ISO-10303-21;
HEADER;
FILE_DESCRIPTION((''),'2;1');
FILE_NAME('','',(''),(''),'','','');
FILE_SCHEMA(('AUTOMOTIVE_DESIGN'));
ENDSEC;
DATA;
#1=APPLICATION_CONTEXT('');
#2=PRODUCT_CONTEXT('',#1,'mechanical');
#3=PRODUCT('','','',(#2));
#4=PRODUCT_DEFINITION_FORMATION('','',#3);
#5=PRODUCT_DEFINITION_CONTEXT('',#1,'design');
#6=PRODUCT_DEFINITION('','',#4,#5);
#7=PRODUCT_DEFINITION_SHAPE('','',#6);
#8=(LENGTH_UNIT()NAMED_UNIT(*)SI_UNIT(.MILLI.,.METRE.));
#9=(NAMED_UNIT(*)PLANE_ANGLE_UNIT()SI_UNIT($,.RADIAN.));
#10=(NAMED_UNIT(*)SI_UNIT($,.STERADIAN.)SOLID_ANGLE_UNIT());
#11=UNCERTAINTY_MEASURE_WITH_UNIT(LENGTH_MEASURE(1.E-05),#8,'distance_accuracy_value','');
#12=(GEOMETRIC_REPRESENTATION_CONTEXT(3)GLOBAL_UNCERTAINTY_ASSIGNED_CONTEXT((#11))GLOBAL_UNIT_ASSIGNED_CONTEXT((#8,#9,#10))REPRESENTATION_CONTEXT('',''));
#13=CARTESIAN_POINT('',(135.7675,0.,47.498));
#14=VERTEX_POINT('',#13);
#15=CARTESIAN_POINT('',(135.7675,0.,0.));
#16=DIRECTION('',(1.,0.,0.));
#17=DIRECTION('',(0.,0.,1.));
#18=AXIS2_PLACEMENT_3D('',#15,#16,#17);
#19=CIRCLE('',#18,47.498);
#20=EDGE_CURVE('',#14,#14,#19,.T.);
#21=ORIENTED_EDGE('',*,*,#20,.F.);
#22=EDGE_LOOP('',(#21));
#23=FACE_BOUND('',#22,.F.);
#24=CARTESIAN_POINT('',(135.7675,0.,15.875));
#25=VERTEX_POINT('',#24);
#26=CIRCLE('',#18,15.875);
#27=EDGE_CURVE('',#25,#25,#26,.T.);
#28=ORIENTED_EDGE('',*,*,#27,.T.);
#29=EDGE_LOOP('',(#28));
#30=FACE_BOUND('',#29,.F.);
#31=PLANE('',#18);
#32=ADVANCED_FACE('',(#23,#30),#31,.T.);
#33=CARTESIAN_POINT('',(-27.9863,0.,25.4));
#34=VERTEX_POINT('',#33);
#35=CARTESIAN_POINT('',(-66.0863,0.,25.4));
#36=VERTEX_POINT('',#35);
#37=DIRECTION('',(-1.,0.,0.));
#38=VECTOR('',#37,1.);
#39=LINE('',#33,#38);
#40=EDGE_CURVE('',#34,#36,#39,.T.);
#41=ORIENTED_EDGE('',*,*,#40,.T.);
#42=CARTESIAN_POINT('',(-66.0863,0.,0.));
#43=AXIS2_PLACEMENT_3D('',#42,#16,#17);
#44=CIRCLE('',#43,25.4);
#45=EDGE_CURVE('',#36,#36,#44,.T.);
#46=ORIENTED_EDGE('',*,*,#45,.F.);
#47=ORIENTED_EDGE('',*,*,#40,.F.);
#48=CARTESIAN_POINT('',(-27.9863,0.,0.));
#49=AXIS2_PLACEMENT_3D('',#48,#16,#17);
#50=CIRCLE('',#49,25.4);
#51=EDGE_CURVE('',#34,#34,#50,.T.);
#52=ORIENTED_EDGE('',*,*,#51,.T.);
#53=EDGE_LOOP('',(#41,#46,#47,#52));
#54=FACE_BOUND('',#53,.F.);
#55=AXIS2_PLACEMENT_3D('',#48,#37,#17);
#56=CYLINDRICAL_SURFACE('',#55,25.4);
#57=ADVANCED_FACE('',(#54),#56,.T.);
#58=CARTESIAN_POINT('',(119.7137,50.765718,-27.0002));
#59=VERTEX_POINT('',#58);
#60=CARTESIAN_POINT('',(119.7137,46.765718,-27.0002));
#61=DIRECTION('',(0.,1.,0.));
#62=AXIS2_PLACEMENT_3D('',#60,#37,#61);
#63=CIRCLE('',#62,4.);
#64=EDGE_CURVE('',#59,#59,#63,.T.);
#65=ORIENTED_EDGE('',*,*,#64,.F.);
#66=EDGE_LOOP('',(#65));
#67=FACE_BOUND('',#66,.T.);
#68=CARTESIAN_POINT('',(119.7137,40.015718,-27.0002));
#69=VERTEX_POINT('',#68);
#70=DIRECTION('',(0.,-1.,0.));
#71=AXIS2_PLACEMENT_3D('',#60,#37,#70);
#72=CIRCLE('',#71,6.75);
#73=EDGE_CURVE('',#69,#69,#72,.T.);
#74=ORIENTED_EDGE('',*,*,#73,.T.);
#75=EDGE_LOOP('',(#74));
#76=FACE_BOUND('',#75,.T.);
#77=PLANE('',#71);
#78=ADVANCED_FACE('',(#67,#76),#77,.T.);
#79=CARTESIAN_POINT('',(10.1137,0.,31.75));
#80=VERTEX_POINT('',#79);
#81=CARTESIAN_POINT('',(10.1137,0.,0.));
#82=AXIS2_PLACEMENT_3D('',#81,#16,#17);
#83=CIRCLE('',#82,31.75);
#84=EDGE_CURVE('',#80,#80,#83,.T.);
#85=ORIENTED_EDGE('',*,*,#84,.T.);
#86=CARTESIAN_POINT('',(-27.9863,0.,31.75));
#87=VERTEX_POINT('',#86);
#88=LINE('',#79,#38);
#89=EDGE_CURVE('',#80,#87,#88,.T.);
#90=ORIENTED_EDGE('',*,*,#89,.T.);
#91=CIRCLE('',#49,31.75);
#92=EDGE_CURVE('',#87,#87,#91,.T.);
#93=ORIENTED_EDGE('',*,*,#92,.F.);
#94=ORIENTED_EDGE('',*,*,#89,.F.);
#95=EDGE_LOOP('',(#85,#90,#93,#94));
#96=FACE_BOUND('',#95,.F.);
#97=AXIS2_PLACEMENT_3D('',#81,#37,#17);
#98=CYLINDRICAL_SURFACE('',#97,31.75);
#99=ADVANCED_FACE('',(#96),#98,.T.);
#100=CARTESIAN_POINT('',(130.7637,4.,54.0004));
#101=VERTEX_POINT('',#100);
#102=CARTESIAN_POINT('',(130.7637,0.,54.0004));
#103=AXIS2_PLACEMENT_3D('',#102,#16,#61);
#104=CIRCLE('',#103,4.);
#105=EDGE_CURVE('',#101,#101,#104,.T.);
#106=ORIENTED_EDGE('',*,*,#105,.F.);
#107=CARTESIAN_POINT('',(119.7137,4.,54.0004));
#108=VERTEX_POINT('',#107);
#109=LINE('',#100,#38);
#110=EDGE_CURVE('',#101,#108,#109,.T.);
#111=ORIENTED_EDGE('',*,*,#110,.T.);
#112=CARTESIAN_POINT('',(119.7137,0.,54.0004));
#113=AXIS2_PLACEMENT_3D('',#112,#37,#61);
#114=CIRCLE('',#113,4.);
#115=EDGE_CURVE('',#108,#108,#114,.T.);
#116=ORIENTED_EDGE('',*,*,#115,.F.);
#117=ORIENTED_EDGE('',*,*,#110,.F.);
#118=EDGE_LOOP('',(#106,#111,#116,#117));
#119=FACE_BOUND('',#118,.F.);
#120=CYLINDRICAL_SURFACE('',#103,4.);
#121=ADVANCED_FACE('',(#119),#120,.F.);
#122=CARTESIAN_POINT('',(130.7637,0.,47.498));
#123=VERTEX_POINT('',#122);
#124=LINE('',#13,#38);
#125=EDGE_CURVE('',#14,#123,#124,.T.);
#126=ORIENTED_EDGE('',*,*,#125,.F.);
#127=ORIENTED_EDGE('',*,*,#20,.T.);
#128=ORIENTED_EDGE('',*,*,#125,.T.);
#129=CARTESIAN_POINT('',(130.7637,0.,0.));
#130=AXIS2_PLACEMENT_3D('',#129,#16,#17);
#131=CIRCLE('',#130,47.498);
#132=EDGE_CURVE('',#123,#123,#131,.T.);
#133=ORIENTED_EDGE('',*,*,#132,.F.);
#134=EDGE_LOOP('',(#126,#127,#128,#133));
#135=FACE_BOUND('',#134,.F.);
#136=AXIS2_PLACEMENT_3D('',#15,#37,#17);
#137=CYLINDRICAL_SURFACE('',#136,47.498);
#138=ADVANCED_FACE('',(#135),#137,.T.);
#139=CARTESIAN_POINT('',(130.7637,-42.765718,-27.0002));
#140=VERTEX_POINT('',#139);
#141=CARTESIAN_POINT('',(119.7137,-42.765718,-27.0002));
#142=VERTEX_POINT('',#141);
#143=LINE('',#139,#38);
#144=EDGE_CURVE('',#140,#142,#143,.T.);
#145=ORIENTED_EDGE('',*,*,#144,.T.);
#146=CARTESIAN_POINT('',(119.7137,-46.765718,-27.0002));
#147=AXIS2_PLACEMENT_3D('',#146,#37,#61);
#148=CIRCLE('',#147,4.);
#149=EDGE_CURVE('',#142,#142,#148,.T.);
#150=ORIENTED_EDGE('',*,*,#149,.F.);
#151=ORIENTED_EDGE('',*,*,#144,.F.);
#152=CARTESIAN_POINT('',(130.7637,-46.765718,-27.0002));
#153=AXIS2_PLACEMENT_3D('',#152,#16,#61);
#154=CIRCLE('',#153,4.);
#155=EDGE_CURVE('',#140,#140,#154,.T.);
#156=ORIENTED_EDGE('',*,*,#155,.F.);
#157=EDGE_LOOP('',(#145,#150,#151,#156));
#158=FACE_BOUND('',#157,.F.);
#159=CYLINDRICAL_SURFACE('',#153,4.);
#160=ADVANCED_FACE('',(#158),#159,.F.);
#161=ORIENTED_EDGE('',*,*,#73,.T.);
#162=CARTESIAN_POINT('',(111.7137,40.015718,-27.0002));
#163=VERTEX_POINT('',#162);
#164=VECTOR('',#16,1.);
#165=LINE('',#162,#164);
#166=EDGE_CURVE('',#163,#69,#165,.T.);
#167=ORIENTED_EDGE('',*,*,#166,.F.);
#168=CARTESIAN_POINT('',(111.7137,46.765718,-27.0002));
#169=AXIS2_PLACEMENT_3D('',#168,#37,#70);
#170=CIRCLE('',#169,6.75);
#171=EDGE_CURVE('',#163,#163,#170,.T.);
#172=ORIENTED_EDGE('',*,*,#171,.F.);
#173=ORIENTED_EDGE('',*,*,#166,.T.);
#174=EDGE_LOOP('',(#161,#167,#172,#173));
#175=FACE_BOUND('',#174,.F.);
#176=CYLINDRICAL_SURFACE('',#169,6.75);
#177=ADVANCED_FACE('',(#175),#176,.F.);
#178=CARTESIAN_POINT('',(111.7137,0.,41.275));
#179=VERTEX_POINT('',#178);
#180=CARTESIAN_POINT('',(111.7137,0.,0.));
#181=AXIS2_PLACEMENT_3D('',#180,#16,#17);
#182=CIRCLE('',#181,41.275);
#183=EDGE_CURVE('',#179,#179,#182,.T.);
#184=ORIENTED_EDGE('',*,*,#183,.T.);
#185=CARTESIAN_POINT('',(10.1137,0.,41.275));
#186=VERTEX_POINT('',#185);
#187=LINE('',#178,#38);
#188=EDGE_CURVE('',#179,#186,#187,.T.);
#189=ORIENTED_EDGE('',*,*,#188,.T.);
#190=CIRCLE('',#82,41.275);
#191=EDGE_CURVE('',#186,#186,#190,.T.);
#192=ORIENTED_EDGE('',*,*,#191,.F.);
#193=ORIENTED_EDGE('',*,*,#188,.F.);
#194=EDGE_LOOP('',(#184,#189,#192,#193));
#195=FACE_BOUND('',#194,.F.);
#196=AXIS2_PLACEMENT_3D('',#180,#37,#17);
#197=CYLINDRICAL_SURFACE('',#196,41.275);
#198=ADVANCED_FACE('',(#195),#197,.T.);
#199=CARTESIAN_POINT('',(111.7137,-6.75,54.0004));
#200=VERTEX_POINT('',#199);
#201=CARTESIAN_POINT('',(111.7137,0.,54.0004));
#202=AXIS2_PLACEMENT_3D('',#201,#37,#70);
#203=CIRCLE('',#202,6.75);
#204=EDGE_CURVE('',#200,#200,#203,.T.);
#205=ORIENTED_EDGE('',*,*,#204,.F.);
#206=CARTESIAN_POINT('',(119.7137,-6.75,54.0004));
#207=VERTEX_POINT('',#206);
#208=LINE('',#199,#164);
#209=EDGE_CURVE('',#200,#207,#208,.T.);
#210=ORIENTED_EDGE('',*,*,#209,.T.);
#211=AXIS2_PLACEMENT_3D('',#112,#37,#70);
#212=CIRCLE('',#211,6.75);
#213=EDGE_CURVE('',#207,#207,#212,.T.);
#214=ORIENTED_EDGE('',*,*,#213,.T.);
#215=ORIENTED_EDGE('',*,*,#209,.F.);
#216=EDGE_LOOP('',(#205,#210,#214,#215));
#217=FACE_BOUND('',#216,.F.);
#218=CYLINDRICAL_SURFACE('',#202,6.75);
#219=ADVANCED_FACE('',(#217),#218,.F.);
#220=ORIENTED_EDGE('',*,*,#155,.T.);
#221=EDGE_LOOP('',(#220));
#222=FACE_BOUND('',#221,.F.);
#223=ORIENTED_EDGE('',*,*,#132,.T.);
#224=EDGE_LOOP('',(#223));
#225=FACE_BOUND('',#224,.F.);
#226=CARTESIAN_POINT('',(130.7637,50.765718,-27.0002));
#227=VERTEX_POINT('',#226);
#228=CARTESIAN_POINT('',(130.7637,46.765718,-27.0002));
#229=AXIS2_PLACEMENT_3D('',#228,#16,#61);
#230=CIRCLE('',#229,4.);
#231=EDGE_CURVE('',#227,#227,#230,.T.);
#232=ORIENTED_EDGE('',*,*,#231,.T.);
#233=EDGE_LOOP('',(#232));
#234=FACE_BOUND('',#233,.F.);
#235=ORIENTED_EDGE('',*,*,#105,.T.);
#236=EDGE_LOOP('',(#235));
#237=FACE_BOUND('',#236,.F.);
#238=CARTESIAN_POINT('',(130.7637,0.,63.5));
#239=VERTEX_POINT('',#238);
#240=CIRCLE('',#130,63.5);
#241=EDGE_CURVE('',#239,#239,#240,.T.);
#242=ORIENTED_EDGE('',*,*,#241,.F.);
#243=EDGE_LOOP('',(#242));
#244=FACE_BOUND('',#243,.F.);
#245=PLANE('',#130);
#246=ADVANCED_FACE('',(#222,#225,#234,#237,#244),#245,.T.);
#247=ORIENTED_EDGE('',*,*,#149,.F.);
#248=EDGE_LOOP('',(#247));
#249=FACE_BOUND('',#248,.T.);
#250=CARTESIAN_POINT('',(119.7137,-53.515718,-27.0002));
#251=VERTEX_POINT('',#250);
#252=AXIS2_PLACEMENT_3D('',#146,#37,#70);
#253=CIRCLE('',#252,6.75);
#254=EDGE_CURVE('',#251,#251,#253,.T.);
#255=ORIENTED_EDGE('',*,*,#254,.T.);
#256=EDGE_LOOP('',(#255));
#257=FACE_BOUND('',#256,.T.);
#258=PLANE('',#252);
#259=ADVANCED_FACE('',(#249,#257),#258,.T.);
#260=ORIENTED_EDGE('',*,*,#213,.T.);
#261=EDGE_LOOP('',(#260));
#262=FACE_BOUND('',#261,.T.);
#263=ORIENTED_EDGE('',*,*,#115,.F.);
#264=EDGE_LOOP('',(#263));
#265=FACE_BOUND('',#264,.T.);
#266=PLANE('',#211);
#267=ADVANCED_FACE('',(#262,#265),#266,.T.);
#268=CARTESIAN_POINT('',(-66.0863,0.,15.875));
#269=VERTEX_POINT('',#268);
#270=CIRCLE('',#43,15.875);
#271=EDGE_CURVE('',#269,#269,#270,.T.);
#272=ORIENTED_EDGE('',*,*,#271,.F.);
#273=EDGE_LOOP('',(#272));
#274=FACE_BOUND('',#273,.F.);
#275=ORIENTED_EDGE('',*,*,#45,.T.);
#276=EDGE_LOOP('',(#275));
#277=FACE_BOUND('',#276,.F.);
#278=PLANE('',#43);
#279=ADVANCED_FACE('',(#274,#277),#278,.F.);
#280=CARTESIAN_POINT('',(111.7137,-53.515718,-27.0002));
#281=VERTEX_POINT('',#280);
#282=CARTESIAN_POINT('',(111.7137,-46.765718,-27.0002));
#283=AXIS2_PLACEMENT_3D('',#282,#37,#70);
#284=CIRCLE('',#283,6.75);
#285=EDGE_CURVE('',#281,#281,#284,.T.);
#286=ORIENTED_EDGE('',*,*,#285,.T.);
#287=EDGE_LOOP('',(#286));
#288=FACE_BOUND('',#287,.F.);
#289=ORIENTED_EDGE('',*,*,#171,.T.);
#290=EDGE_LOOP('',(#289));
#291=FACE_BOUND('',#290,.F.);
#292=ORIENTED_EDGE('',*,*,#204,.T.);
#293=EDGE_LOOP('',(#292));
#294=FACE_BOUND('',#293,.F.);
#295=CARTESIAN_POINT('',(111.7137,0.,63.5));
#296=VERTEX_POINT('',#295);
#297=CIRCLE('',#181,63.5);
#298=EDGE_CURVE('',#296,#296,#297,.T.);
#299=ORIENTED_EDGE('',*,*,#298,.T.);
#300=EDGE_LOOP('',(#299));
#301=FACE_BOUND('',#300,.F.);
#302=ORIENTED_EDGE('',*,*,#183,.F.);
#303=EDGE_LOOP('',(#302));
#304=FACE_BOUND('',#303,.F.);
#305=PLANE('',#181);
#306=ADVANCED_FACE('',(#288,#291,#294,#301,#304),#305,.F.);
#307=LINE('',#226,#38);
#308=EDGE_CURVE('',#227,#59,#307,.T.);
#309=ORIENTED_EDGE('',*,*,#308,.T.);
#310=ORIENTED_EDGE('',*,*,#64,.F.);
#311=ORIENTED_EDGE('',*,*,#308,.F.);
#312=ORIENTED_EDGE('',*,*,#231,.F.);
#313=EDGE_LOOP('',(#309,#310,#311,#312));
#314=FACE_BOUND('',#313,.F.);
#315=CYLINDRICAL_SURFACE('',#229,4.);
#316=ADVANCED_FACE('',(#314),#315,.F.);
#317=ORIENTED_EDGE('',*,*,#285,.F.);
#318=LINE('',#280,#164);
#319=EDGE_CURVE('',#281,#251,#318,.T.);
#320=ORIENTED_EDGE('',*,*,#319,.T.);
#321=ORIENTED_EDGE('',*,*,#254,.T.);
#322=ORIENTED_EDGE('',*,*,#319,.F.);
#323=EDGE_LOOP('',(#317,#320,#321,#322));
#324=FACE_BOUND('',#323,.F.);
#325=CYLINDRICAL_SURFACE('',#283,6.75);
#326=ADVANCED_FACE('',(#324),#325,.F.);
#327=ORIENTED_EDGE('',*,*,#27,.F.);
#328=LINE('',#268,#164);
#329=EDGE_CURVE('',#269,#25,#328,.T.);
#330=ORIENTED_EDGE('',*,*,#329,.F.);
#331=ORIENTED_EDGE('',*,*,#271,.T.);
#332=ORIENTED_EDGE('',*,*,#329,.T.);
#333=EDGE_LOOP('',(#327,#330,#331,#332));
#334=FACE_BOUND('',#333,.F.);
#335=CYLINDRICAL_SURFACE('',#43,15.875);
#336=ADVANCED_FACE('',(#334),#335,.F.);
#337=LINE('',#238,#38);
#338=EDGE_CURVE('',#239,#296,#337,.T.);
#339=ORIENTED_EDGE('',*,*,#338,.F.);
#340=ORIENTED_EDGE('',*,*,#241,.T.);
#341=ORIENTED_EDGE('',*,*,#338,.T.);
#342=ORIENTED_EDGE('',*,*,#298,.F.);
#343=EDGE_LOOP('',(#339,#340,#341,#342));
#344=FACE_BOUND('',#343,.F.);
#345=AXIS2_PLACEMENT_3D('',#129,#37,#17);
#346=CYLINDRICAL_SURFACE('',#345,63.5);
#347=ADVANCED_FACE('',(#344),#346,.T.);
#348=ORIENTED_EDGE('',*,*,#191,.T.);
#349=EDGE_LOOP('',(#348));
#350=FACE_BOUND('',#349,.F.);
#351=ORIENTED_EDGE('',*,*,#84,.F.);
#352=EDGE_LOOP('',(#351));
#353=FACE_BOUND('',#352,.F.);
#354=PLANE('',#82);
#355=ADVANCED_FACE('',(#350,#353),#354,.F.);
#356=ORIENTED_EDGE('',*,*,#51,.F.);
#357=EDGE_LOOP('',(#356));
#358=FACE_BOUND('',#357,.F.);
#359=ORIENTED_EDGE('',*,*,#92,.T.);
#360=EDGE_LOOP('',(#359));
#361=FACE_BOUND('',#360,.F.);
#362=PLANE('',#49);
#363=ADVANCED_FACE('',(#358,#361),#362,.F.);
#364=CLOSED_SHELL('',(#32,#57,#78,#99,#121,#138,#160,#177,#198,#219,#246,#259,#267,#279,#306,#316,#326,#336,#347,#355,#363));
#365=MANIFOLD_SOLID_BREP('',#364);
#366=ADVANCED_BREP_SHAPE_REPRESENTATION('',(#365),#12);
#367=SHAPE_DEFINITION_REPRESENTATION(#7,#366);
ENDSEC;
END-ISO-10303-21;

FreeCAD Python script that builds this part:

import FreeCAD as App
import Part
import Sketcher
Q = App.Units.Quantity

doc = App.newDocument("Part")
body = doc.addObject("PartDesign::Body", "Body")

# Sketch on XZ plane
sketch1 = doc.addObject("Sketcher::SketchObject", "Sketch")
body.addObject(sketch1)
sketch1.AttachmentSupport = (doc.XZ_Plane, [""])
sketch1.MapMode = "FlatFace"
sketch1.addGeometry(Part.LineSegment(App.Vector(136, 16, 0), App.Vector(136, 47, 0)), False)
sketch1.addGeometry(Part.LineSegment(App.Vector(136, 47, 0), App.Vector(131, 47, 0)), False)
sketch1.addGeometry(Part.LineSegment(App.Vector(131, 47, 0), App.Vector(131, 64, 0)), False)
sketch1.addGeometry(Part.LineSegment(App.Vector(131, 64, 0), App.Vector(112, 64, 0)), False)
sketch1.addGeometry(Part.LineSegment(App.Vector(112, 64, 0), App.Vector(112, 41, 0)), False)
sketch1.addGeometry(Part.LineSegment(App.Vector(112, 41, 0), App.Vector(10, 41, 0)), False)
sketch1.addGeometry(Part.LineSegment(App.Vector(10, 41, 0), App.Vector(10, 32, 0)), False)
sketch1.addGeometry(Part.LineSegment(App.Vector(10, 32, 0), App.Vector(-28, 32, 0)), False)
sketch1.addGeometry(Part.LineSegment(App.Vector(-28, 32, 0), App.Vector(-28, 25, 0)), False)
sketch1.addGeometry(Part.LineSegment(App.Vector(-28, 25, 0), App.Vector(-66, 25, 0)), False)
sketch1.addGeometry(Part.LineSegment(App.Vector(-66, 25, 0), App.Vector(-66, 16, 0)), False)
sketch1.addGeometry(Part.LineSegment(App.Vector(-66, 16, 0), App.Vector(136, 16, 0)), False)
sketch1.addConstraint(Sketcher.Constraint("Coincident", 0, 2, 1, 1))
sketch1.addConstraint(Sketcher.Constraint("Coincident", 1, 2, 2, 1))
sketch1.addConstraint(Sketcher.Constraint("Coincident", 2, 2, 3, 1))
sketch1.addConstraint(Sketcher.Constraint("Coincident", 3, 2, 4, 1))
sketch1.addConstraint(Sketcher.Constraint("Coincident", 4, 2, 5, 1))
sketch1.addConstraint(Sketcher.Constraint("Coincident", 5, 2, 6, 1))
sketch1.addConstraint(Sketcher.Constraint("Coincident", 6, 2, 7, 1))
sketch1.addConstraint(Sketcher.Constraint("Coincident", 7, 2, 8, 1))
sketch1.addConstraint(Sketcher.Constraint("Coincident", 8, 2, 9, 1))
sketch1.addConstraint(Sketcher.Constraint("Coincident", 9, 2, 10, 1))
sketch1.addConstraint(Sketcher.Constraint("Coincident", 10, 2, 11, 1))
sketch1.addConstraint(Sketcher.Constraint("Coincident", 11, 2, 0, 1))
sketch1.addConstraint(Sketcher.Constraint("Vertical", 0))
sketch1.addConstraint(Sketcher.Constraint("Horizontal", 1))
sketch1.addConstraint(Sketcher.Constraint("Vertical", 2))
sketch1.addConstraint(Sketcher.Constraint("Horizontal", 3))
sketch1.addConstraint(Sketcher.Constraint("Vertical", 4))
sketch1.addConstraint(Sketcher.Constraint("Horizontal", 5))
sketch1.addConstraint(Sketcher.Constraint("Vertical", 6))
sketch1.addConstraint(Sketcher.Constraint("Horizontal", 7))
sketch1.addConstraint(Sketcher.Constraint("Vertical", 8))
sketch1.addConstraint(Sketcher.Constraint("Horizontal", 9))
sketch1.addConstraint(Sketcher.Constraint("Vertical", 10))
sketch1.addConstraint(Sketcher.Constraint("Horizontal", 11))
sketch1.addConstraint(Sketcher.Constraint("Equal", 7, 9))
sketch1.addConstraint(Sketcher.Constraint("Equal", 6, 10))
sketch1.addConstraint(Sketcher.Constraint("DistanceX", 5, 2, 5, 1, Q("4 in")))
sketch1.addConstraint(Sketcher.Constraint("DistanceX", 7, 2, 7, 1, Q("1.5 in")))
sketch1.addConstraint(Sketcher.Constraint("DistanceY", -1, 1, 8, 2, Q("1 in")))
sketch1.addConstraint(Sketcher.Constraint("DistanceY", 10, 2, 5, 2, Q("1 in")))
sketch1.addConstraint(Sketcher.Constraint("DistanceX", 3, 2, 3, 1, Q("0.75 in")))
sketch1.addConstraint(Sketcher.Constraint("DistanceY", 2, 1, 2, 2, Q("0.63 in")))
sketch1.addConstraint(Sketcher.Constraint("DistanceY", 8, 2, 8, 1, Q("0.25 in")))
sketch1.addConstraint(Sketcher.Constraint("DistanceY", -1, 1, 2, 2, Q("2.5 in")))
sketch1.addConstraint(Sketcher.Constraint("DistanceX", 1, 2, 1, 1, Q("0.197 in")))
sketch1.addConstraint(Sketcher.Constraint("DistanceX", -1, 1, 0, 2, Q("135.7675 mm")))
revolution = doc.addObject("PartDesign::Revolution", "Revolution")
body.addObject(revolution)
revolution.Profile = sketch1
revolution.ReferenceAxis = (sketch1, ["H_Axis"])
revolution.Angle = 360

# Sketch on YZ plane
sketch2 = doc.addObject("Sketcher::SketchObject", "Sketch001")
body.addObject(sketch2)
sketch2.AttachmentSupport = (doc.YZ_Plane, [""])
sketch2.MapMode = "FlatFace"
sketch2.AttachmentOffset = App.Placement(App.Vector(0, 0, 130.7637), App.Rotation())
sketch2.addGeometry(Part.Circle(App.Vector(0, 54, 0), App.Vector(0, 0, 1), 4), False)
sketch2.addGeometry(Part.Circle(App.Vector(46.8, -27, 0), App.Vector(0, 0, 1), 4), False)
sketch2.addGeometry(Part.Circle(App.Vector(-46.8, -27, 0), App.Vector(0, 0, 1), 4), False)
sketch2.addConstraint(Sketcher.Constraint("Equal", 0, 1))
sketch2.addConstraint(Sketcher.Constraint("Equal", 1, 2))
sketch2.addConstraint(Sketcher.Constraint("Symmetric", 1, 3, 2, 3, -2))
sketch2.addConstraint(Sketcher.Constraint("PointOnObject", 0, 3, -2))
sketch2.addConstraint(Sketcher.Constraint("Diameter", 0, Q("8 mm")))
sketch2.addConstraint(Sketcher.Constraint("DistanceY", -1, 1, 0, 3, Q("2.126 in")))
sketch2.addConstraint(Sketcher.Constraint("DistanceY", 1, 3, -1, 1, Q("1.063 in")))
sketch2.addConstraint(Sketcher.Constraint("DistanceX", -1, 1, 1, 3, Q("46.765718 mm")))
pocket1 = doc.addObject("PartDesign::Pocket", "Pocket")
body.addObject(pocket1)
pocket1.Profile = sketch2
pocket1.Length = Q("1 in")

# Sketch on YZ plane
sketch3 = doc.addObject("Sketcher::SketchObject", "Sketch002")
body.addObject(sketch3)
sketch3.AttachmentSupport = (doc.YZ_Plane, [""])
sketch3.MapMode = "FlatFace"
sketch3.AttachmentOffset = App.Placement(App.Vector(0, 0, 111.7137), App.Rotation())
sketch3.addGeometry(Part.Circle(App.Vector(0, 54, 0), App.Vector(0, 0, 1), 6.8), False)
sketch3.addGeometry(Part.Circle(App.Vector(0, 54, 0), App.Vector(0, 0, 1), 4), False)
sketch3.addGeometry(Part.Circle(App.Vector(-46.8, -27, 0), App.Vector(0, 0, 1), 6.8), False)
sketch3.addGeometry(Part.Circle(App.Vector(-46.8, -27, 0), App.Vector(0, 0, 1), 4), False)
sketch3.addGeometry(Part.Circle(App.Vector(46.8, -27, 0), App.Vector(0, 0, 1), 6.8), False)
sketch3.addGeometry(Part.Circle(App.Vector(46.8, -27, 0), App.Vector(0, 0, 1), 4), False)
sketch3.addConstraint(Sketcher.Constraint("Coincident", 1, 3, 0, 3))
sketch3.addConstraint(Sketcher.Constraint("Coincident", 3, 3, 2, 3))
sketch3.addConstraint(Sketcher.Constraint("Coincident", 5, 3, 4, 3))
sketch3.addConstraint(Sketcher.Constraint("Equal", 0, 2))
sketch3.addConstraint(Sketcher.Constraint("Equal", 1, 3))
sketch3.addConstraint(Sketcher.Constraint("Equal", 2, 4))
sketch3.addConstraint(Sketcher.Constraint("Equal", 3, 5))
sketch3.addConstraint(Sketcher.Constraint("Symmetric", 2, 3, 4, 3, -2))
sketch3.addConstraint(Sketcher.Constraint("PointOnObject", 0, 3, -2))
sketch3.addConstraint(Sketcher.Constraint("Diameter", 0, Q("13.5 mm")))
sketch3.addConstraint(Sketcher.Constraint("Diameter", 1, Q("8 mm")))
sketch3.addConstraint(Sketcher.Constraint("DistanceY", -1, 1, 0, 3, Q("2.126 in")))
sketch3.addConstraint(Sketcher.Constraint("DistanceY", 2, 3, -1, 1, Q("1.063 in")))
sketch3.addConstraint(Sketcher.Constraint("DistanceX", 2, 3, -1, 1, Q("46.765718 mm")))
pocket2 = doc.addObject("PartDesign::Pocket", "Pocket001")
body.addObject(pocket2)
pocket2.Profile = sketch3
pocket2.Length = 8
pocket2.Reversed = True

doc.recompute()
